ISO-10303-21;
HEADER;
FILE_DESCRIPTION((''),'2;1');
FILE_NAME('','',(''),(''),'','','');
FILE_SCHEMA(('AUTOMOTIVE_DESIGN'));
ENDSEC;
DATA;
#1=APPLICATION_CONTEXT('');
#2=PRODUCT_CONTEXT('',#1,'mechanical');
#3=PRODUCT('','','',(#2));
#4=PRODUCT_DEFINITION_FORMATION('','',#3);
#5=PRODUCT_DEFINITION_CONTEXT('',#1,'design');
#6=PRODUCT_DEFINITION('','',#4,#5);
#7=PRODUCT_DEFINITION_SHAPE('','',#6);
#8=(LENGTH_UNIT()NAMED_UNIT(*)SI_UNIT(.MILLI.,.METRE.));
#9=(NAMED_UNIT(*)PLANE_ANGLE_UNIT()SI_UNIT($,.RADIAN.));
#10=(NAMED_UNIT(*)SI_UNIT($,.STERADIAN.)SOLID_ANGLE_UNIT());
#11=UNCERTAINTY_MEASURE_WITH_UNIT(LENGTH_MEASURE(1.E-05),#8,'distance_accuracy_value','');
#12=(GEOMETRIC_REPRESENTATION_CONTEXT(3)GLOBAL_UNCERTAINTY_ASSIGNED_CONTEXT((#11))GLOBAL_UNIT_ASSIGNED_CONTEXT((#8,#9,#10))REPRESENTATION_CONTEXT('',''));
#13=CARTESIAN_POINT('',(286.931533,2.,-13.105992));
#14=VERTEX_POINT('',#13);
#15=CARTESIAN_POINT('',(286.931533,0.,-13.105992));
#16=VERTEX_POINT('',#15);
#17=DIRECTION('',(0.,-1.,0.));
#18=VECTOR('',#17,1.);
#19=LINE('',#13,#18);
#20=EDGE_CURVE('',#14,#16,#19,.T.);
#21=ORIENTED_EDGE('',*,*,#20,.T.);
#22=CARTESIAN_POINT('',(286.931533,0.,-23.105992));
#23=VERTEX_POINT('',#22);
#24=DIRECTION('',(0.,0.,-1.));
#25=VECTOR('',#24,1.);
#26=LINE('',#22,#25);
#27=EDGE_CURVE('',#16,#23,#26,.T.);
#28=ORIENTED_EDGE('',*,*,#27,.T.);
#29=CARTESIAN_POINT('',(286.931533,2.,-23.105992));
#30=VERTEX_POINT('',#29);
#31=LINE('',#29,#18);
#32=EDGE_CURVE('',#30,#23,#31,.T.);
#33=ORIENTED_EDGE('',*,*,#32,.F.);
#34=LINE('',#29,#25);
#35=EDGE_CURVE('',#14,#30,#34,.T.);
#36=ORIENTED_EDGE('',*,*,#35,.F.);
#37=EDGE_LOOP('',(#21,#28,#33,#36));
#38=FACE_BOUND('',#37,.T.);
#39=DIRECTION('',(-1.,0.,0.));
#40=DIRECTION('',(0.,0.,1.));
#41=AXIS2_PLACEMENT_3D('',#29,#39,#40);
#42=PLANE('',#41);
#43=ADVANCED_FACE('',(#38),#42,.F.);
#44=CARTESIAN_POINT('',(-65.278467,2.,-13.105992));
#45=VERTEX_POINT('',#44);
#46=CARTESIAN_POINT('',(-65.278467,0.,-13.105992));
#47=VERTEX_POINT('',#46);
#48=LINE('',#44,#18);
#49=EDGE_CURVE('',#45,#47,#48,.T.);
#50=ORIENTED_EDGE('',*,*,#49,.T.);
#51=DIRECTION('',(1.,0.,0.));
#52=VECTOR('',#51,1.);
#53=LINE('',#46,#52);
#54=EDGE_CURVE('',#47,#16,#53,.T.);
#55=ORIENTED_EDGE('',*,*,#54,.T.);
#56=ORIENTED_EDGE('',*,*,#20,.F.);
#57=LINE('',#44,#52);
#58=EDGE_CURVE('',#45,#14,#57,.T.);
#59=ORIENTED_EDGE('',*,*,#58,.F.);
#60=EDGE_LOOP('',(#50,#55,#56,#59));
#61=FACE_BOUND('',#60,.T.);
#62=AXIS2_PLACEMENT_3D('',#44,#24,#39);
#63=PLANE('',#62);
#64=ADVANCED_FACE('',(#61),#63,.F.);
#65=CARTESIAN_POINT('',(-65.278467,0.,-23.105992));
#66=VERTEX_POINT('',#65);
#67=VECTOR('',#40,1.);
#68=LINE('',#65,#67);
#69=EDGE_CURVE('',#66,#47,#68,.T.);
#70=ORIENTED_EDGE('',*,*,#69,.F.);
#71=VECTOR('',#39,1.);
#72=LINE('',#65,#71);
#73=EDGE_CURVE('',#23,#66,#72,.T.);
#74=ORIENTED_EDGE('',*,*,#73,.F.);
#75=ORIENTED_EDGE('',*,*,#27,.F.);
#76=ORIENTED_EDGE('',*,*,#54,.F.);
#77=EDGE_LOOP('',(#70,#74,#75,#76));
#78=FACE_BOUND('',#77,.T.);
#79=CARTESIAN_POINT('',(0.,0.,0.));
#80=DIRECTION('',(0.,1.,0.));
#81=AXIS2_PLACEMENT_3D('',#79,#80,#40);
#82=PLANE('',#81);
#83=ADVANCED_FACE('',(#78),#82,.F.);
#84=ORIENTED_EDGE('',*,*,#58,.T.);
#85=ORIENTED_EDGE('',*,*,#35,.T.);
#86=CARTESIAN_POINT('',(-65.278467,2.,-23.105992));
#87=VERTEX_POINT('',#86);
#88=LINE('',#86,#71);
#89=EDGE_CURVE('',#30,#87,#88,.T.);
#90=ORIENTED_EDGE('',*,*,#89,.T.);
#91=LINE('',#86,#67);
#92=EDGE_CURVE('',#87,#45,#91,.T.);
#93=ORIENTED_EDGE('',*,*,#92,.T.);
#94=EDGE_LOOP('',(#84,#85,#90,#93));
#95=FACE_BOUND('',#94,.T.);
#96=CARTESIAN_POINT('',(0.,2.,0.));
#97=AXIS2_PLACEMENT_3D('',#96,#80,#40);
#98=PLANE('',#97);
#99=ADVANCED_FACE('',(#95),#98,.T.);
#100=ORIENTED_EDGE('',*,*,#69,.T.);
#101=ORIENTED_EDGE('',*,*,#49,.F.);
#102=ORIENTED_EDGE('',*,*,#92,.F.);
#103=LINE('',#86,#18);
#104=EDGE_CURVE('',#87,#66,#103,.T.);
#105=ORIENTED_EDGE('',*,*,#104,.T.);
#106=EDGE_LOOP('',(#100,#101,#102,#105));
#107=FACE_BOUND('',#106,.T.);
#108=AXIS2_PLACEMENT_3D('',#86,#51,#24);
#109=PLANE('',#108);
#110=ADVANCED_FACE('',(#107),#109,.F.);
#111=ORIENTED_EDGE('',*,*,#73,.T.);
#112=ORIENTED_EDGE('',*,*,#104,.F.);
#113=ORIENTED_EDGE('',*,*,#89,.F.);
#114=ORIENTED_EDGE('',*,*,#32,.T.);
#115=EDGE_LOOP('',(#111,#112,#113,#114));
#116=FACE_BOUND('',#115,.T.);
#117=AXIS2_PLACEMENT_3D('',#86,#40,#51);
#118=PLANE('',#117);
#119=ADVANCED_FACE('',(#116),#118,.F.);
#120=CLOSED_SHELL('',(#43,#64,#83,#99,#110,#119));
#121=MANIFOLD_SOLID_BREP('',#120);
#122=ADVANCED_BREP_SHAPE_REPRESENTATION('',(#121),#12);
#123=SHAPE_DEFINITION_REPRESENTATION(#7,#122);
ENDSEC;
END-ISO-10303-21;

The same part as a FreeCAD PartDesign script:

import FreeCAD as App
import Part
import Sketcher
Q = App.Units.Quantity


def add_polygon(sketch, points):
    """Adds a closed chain of lines whose ends are joined by coincident constraints."""
    first, n = sketch.GeometryCount, len(points)
    for a, b in zip(points, points[1:] + points[:1]):
        sketch.addGeometry(Part.LineSegment(App.Vector(*a, 0), App.Vector(*b, 0)), False)
    for i in range(n):
        sketch.addConstraint(Sketcher.Constraint("Coincident", first + i, 2, first + (i + 1) % n, 1))

doc = App.newDocument("Part")
body = doc.addObject("PartDesign::Body", "Body")

# Sketch on XZ plane
sketch1 = body.newObject("Sketcher::SketchObject", "Sketch")
sketch1.AttachmentSupport = (doc.getObject("XZ_Plane"), [""])
sketch1.MapMode = "FlatFace"
add_polygon(sketch1, [(-65, -23), (-65, -13), (287, -13), (287, -23)])  # lines 0-3
sketch1.addConstraint([
    Sketcher.Constraint("Vertical", 0),
    Sketcher.Constraint("Horizontal", 1),
    Sketcher.Constraint("Vertical", 2),
    Sketcher.Constraint("Horizontal", 3),
    Sketcher.Constraint("DistanceY", 0, 1, 0, 2, Q("10 mm")),
    Sketcher.Constraint("DistanceX", 1, 1, 1, 2, Q("352.21 mm")),
    Sketcher.Constraint("DistanceY", 0, 2, -1, 1, Q("13.105992 mm")),
    Sketcher.Constraint("DistanceX", 0, 2, -1, 1, Q("65.278467 mm")),
])
pad1 = body.newObject("PartDesign::Pad", "Pad")
pad1.Profile = sketch1
pad1.Length = 2
pad1.Reversed = True

doc.recompute()
